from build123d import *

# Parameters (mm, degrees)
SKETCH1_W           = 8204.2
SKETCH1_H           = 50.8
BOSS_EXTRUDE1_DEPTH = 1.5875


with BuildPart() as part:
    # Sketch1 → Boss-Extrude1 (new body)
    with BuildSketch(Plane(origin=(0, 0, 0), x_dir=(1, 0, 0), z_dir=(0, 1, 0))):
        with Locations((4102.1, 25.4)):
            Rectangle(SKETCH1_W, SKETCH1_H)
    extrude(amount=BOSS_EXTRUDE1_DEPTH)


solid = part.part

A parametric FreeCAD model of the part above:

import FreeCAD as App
import Part
import Sketcher
Q = App.Units.Quantity


def add_polygon(sketch, points):
    """Adds a closed chain of lines whose ends are joined by coincident constraints."""
    first, n = sketch.GeometryCount, len(points)
    for a, b in zip(points, points[1:] + points[:1]):
        sketch.addGeometry(Part.LineSegment(App.Vector(*a, 0), App.Vector(*b, 0)), False)
    for i in range(n):
        sketch.addConstraint(Sketcher.Constraint("Coincident", first + i, 2, first + (i + 1) % n, 1))

doc = App.newDocument("Part")
params = doc.addObject("Spreadsheet::Sheet", "Params")
for row, (alias, value) in enumerate([
    ("sketch1_width", "323 in"),
    ("sketch1_height", "2 in"),
    ("pad1_length", "0.0625 in"),
], start=1):
    params.set(f"A{row}", alias)
    params.set(f"B{row}", "=" + value)
    params.setAlias(f"B{row}", alias)

body = doc.addObject("PartDesign::Body", "Body")

sketch1 = doc.addObject("Sketcher::SketchObject", "Sketch")
body.addObject(sketch1)
sketch1.AttachmentSupport = (doc.XZ_Plane, [""])
sketch1.MapMode = "FlatFace"
add_polygon(sketch1, [(0, -51), (0, 0), (8204, 0), (8204, -51)])
sketch1.addConstraint(Sketcher.Constraint("Vertical", 0))
sketch1.addConstraint(Sketcher.Constraint("Horizontal", 1))
sketch1.addConstraint(Sketcher.Constraint("Vertical", 2))
sketch1.addConstraint(Sketcher.Constraint("Horizontal", 3))
sketch1.addConstraint(Sketcher.Constraint("Coincident", 0, 2, -1, 1))
sketch1.addConstraint(Sketcher.Constraint("DistanceX", 1, 1, 1, 2, Q("323 in")))
sketch1.addConstraint(Sketcher.Constraint("DistanceY", 0, 1, 0, 2, Q("2 in")))
sketch1.setExpression("Constraints[9]", "Params.sketch1_width")
sketch1.setExpression("Constraints[10]", "Params.sketch1_height")
pad1 = doc.addObject("PartDesign::Pad", "Pad")
body.addObject(pad1)
pad1.Profile = sketch1
pad1.setExpression("Length", "Params.pad1_length")
pad1.Reversed = True

doc.recompute()
